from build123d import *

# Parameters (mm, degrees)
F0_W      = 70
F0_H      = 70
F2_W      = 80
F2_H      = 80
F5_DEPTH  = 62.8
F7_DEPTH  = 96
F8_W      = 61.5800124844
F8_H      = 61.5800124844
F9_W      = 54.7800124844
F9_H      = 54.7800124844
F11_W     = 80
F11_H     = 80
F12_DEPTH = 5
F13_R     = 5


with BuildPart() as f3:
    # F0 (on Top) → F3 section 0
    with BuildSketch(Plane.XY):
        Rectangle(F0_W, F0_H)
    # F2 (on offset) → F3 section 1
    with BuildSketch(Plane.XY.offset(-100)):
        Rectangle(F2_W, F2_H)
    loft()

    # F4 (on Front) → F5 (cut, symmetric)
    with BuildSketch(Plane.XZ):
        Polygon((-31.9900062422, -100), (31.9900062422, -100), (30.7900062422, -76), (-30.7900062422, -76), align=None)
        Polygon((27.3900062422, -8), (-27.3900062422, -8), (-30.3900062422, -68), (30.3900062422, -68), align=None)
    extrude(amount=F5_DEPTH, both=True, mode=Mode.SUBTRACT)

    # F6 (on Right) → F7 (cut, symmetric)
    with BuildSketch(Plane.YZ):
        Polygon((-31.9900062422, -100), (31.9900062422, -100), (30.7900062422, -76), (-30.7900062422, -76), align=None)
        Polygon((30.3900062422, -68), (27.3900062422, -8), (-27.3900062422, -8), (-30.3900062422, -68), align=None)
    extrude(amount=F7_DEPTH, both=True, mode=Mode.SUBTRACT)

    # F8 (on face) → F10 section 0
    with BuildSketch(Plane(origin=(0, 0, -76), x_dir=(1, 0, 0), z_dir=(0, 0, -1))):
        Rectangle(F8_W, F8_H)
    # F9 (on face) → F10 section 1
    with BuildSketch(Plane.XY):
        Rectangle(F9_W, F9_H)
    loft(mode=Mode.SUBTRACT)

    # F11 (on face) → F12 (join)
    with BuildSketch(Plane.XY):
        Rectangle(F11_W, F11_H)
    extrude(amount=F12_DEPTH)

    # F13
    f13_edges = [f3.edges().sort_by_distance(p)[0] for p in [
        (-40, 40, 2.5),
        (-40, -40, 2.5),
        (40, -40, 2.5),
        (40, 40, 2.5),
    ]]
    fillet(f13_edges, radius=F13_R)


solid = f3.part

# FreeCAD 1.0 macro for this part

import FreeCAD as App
import Part
import Sketcher

V = App.Vector
Q = App.Units.Quantity


def edges_at(feature, points):
    """Names of the edges that pass closest to the given points."""
    edges = feature.Shape.Edges
    near = lambda p: min(range(len(edges)), key=lambda i: edges[i].distToShape(Part.Vertex(*p))[0])
    return sorted({f"Edge{near(p) + 1}" for p in points})

doc = App.newDocument("Part")
body = doc.addObject("PartDesign::Body", "Body")

# Sketch on XY plane
sketch1 = body.newObject("Sketcher::SketchObject", "Sketch")
sketch1.AttachmentSupport = (doc.getObject("XY_Plane"), [""])
sketch1.MapMode = "FlatFace"
sketch1.addGeometry(Part.LineSegment(V(-35, 35, 0), V(-35, -35, 0)), False)
sketch1.addGeometry(Part.LineSegment(V(-35, -35, 0), V(35, -35, 0)), False)
sketch1.addGeometry(Part.LineSegment(V(35, -35, 0), V(35, 35, 0)), False)
sketch1.addGeometry(Part.LineSegment(V(35, 35, 0), V(-35, 35, 0)), False)
sketch1.addConstraint(Sketcher.Constraint("Coincident", 0, 2, 1, 1))
sketch1.addConstraint(Sketcher.Constraint("Coincident", 1, 2, 2, 1))
sketch1.addConstraint(Sketcher.Constraint("Coincident", 2, 2, 3, 1))
sketch1.addConstraint(Sketcher.Constraint("Coincident", 3, 2, 0, 1))
sketch1.addConstraint(Sketcher.Constraint("Vertical", 0))
sketch1.addConstraint(Sketcher.Constraint("Horizontal", 1))
sketch1.addConstraint(Sketcher.Constraint("Vertical", 2))
sketch1.addConstraint(Sketcher.Constraint("Horizontal", 3))
sketch1.addConstraint(Sketcher.Constraint("Symmetric", 0, 2, 2, 2, -1, 1))
sketch1.addConstraint(Sketcher.Constraint("Equal", 3, 0))
sketch1.addConstraint(Sketcher.Constraint("DistanceX", 1, 1, 1, 2, Q("70 mm")))

# Sketch on XY plane
sketch2 = body.newObject("Sketcher::SketchObject", "Sketch001")
sketch2.AttachmentSupport = (doc.getObject("XY_Plane"), [""])
sketch2.MapMode = "FlatFace"
sketch2.AttachmentOffset = App.Placement(V(0, 0, -100), App.Rotation())
sketch2.addGeometry(Part.LineSegment(V(-40, 40, 0), V(-40, -40, 0)), False)
sketch2.addGeometry(Part.LineSegment(V(-40, -40, 0), V(40, -40, 0)), False)
sketch2.addGeometry(Part.LineSegment(V(40, -40, 0), V(40, 40, 0)), False)
sketch2.addGeometry(Part.LineSegment(V(40, 40, 0), V(-40, 40, 0)), False)
sketch2.addConstraint(Sketcher.Constraint("Coincident", 0, 2, 1, 1))
sketch2.addConstraint(Sketcher.Constraint("Coincident", 1, 2, 2, 1))
sketch2.addConstraint(Sketcher.Constraint("Coincident", 2, 2, 3, 1))
sketch2.addConstraint(Sketcher.Constraint("Coincident", 3, 2, 0, 1))
sketch2.addConstraint(Sketcher.Constraint("Vertical", 0))
sketch2.addConstraint(Sketcher.Constraint("Horizontal", 1))
sketch2.addConstraint(Sketcher.Constraint("Vertical", 2))
sketch2.addConstraint(Sketcher.Constraint("Horizontal", 3))
sketch2.addConstraint(Sketcher.Constraint("Symmetric", 0, 2, 2, 2, -1, 1))
sketch2.addConstraint(Sketcher.Constraint("Equal", 3, 0))
sketch2.addConstraint(Sketcher.Constraint("DistanceX", 1, 1, 1, 2, Q("80 mm")))

additiveloft = body.newObject("PartDesign::AdditiveLoft", "AdditiveLoft")
additiveloft.Profile = sketch1
additiveloft.Sections = [sketch2]

# Sketch on XZ plane
sketch3 = body.newObject("Sketcher::SketchObject", "Sketch002")
sketch3.AttachmentSupport = (doc.getObject("XZ_Plane"), [""])
sketch3.MapMode = "FlatFace"
sketch3.addGeometry(Part.LineSegment(V(-32, -100, 0), V(32, -100, 0)), False)
sketch3.addGeometry(Part.LineSegment(V(32, -100, 0), V(31, -76, 0)), False)
sketch3.addGeometry(Part.LineSegment(V(31, -76, 0), V(-31, -76, 0)), False)
sketch3.addGeometry(Part.LineSegment(V(-31, -76, 0), V(-32, -100, 0)), False)
sketch3.addGeometry(Part.LineSegment(V(27, -8, 0), V(-27, -8, 0)), False)
sketch3.addGeometry(Part.LineSegment(V(-27, -8, 0), V(-30, -68, 0)), False)
sketch3.addGeometry(Part.LineSegment(V(-30, -68, 0), V(30, -68, 0)), False)
sketch3.addGeometry(Part.LineSegment(V(30, -68, 0), V(27, -8, 0)), False)
sketch3.addConstraint(Sketcher.Constraint("Coincident", 0, 2, 1, 1))
sketch3.addConstraint(Sketcher.Constraint("Coincident", 1, 2, 2, 1))
sketch3.addConstraint(Sketcher.Constraint("Coincident", 2, 2, 3, 1))
sketch3.addConstraint(Sketcher.Constraint("Coincident", 3, 2, 0, 1))
sketch3.addConstraint(Sketcher.Constraint("Coincident", 4, 2, 5, 1))
sketch3.addConstraint(Sketcher.Constraint("Coincident", 5, 2, 6, 1))
sketch3.addConstraint(Sketcher.Constraint("Coincident", 6, 2, 7, 1))
sketch3.addConstraint(Sketcher.Constraint("Coincident", 7, 2, 4, 1))
sketch3.addConstraint(Sketcher.Constraint("Horizontal", 0))
sketch3.addConstraint(Sketcher.Constraint("Horizontal", 2))
sketch3.addConstraint(Sketcher.Constraint("Horizontal", 4))
sketch3.addConstraint(Sketcher.Constraint("Horizontal", 6))
sketch3.addConstraint(Sketcher.Constraint("Parallel", 3, 5))
sketch3.addConstraint(Sketcher.Constraint("Parallel", 1, 7))
sketch3.addConstraint(Sketcher.Constraint("Equal", 1, 3))
sketch3.addConstraint(Sketcher.Constraint("DistanceY", 0, 2, -1, 1, Q("100 mm")))
sketch3.addConstraint(Sketcher.Constraint("DistanceY", 1, 2, -1, 1, Q("76 mm")))
sketch3.addConstraint(Sketcher.Constraint("DistanceY", 4, 2, -1, 1, Q("8 mm")))
sketch3.addConstraint(Sketcher.Constraint("DistanceY", 5, 2, -1, 1, Q("68 mm")))
sketch3.addConstraint(Sketcher.Constraint("DistanceX", 5, 2, 4, 2, Q("3 mm")))
sketch3.addConstraint(Sketcher.Constraint("DistanceX", 2, 2, 4, 2, Q("3.4 mm")))
sketch3.addConstraint(Sketcher.Constraint("DistanceX", 6, 2, 1, 2, Q("0.4 mm")))
sketch3.addConstraint(Sketcher.Constraint("DistanceX", 0, 1, 0, 2, Q("63.980012 mm")))
sketch3.addConstraint(Sketcher.Constraint("DistanceX", -1, 1, 0, 2, Q("31.990006 mm")))
pocket1 = body.newObject("PartDesign::Pocket", "Pocket")
pocket1.Profile = sketch3
pocket1.Length = 125.6
pocket1.Midplane = True

# Sketch on YZ plane
sketch4 = body.newObject("Sketcher::SketchObject", "Sketch003")
sketch4.AttachmentSupport = (doc.getObject("YZ_Plane"), [""])
sketch4.MapMode = "FlatFace"
sketch4.addGeometry(Part.LineSegment(V(-32, -100, 0), V(32, -100, 0)), False)
sketch4.addGeometry(Part.LineSegment(V(32, -100, 0), V(31, -76, 0)), False)
sketch4.addGeometry(Part.LineSegment(V(31, -76, 0), V(-31, -76, 0)), False)
sketch4.addGeometry(Part.LineSegment(V(-31, -76, 0), V(-32, -100, 0)), False)
sketch4.addGeometry(Part.LineSegment(V(30, -68, 0), V(27, -8, 0)), False)
sketch4.addGeometry(Part.LineSegment(V(27, -8, 0), V(-27, -8, 0)), False)
sketch4.addGeometry(Part.LineSegment(V(-27, -8, 0), V(-30, -68, 0)), False)
sketch4.addGeometry(Part.LineSegment(V(-30, -68, 0), V(30, -68, 0)), False)
sketch4.addConstraint(Sketcher.Constraint("Coincident", 0, 2, 1, 1))
sketch4.addConstraint(Sketcher.Constraint("Coincident", 1, 2, 2, 1))
sketch4.addConstraint(Sketcher.Constraint("Coincident", 2, 2, 3, 1))
sketch4.addConstraint(Sketcher.Constraint("Coincident", 3, 2, 0, 1))
sketch4.addConstraint(Sketcher.Constraint("Coincident", 4, 2, 5, 1))
sketch4.addConstraint(Sketcher.Constraint("Coincident", 5, 2, 6, 1))
sketch4.addConstraint(Sketcher.Constraint("Coincident", 6, 2, 7, 1))
sketch4.addConstraint(Sketcher.Constraint("Coincident", 7, 2, 4, 1))
sketch4.addConstraint(Sketcher.Constraint("Horizontal", 0))
sketch4.addConstraint(Sketcher.Constraint("Horizontal", 2))
sketch4.addConstraint(Sketcher.Constraint("Horizontal", 5))
sketch4.addConstraint(Sketcher.Constraint("Horizontal", 7))
sketch4.addConstraint(Sketcher.Constraint("Parallel", 1, 4))
sketch4.addConstraint(Sketcher.Constraint("Parallel", 3, 6))
sketch4.addConstraint(Sketcher.Constraint("Equal", 1, 3))
sketch4.addConstraint(Sketcher.Constraint("DistanceY", 0, 2, -1, 1, Q("100 mm")))
sketch4.addConstraint(Sketcher.Constraint("DistanceY", 1, 2, -1, 1, Q("76 mm")))
sketch4.addConstraint(Sketcher.Constraint("DistanceY", 4, 2, -1, 1, Q("8 mm")))
sketch4.addConstraint(Sketcher.Constraint("DistanceY", 6, 2, -1, 1, Q("68 mm")))
sketch4.addConstraint(Sketcher.Constraint("DistanceX", 6, 2, 5, 2, Q("3 mm")))
sketch4.addConstraint(Sketcher.Constraint("DistanceX", 4, 2, 1, 2, Q("3.4 mm")))
sketch4.addConstraint(Sketcher.Constraint("DistanceX", 2, 2, 5, 2, Q("3.4 mm")))
sketch4.addConstraint(Sketcher.Constraint("DistanceX", 0, 1, 0, 2, Q("63.980012 mm")))
sketch4.addConstraint(Sketcher.Constraint("DistanceX", -1, 1, 0, 2, Q("31.990006 mm")))
pocket2 = body.newObject("PartDesign::Pocket", "Pocket001")
pocket2.Profile = sketch4
pocket2.Length = 192
pocket2.Midplane = True

# Sketch on XY plane
sketch5 = body.newObject("Sketcher::SketchObject", "Sketch004")
sketch5.AttachmentSupport = (doc.getObject("XY_Plane"), [""])
sketch5.MapMode = "FlatFace"
sketch5.AttachmentOffset = App.Placement(V(0, 0, -76), App.Rotation())
sketch5.addGeometry(Part.LineSegment(V(-31, -31, 0), V(-31, 31, 0)), False)
sketch5.addGeometry(Part.LineSegment(V(-31, 31, 0), V(31, 31, 0)), False)
sketch5.addGeometry(Part.LineSegment(V(31, 31, 0), V(31, -31, 0)), False)
sketch5.addGeometry(Part.LineSegment(V(31, -31, 0), V(-31, -31, 0)), False)
sketch5.addConstraint(Sketcher.Constraint("Coincident", 0, 2, 1, 1))
sketch5.addConstraint(Sketcher.Constraint("Coincident", 1, 2, 2, 1))
sketch5.addConstraint(Sketcher.Constraint("Coincident", 2, 2, 3, 1))
sketch5.addConstraint(Sketcher.Constraint("Coincident", 3, 2, 0, 1))
sketch5.addConstraint(Sketcher.Constraint("Vertical", 0))
sketch5.addConstraint(Sketcher.Constraint("Horizontal", 1))
sketch5.addConstraint(Sketcher.Constraint("Vertical", 2))
sketch5.addConstraint(Sketcher.Constraint("Horizontal", 3))
sketch5.addConstraint(Sketcher.Constraint("Symmetric", 0, 2, 2, 2, -1, 1))
sketch5.addConstraint(Sketcher.Constraint("Equal", 3, 0))
sketch5.addConstraint(Sketcher.Constraint("DistanceX", 1, 1, 1, 2, Q("61.580012 mm")))

# Sketch on XY plane
sketch6 = body.newObject("Sketcher::SketchObject", "Sketch005")
sketch6.AttachmentSupport = (doc.getObject("XY_Plane"), [""])
sketch6.MapMode = "FlatFace"
sketch6.addGeometry(Part.LineSegment(V(-27, 27, 0), V(-27, -27, 0)), False)
sketch6.addGeometry(Part.LineSegment(V(-27, -27, 0), V(27, -27, 0)), False)
sketch6.addGeometry(Part.LineSegment(V(27, -27, 0), V(27, 27, 0)), False)
sketch6.addGeometry(Part.LineSegment(V(27, 27, 0), V(-27, 27, 0)), False)
sketch6.addConstraint(Sketcher.Constraint("Coincident", 0, 2, 1, 1))
sketch6.addConstraint(Sketcher.Constraint("Coincident", 1, 2, 2, 1))
sketch6.addConstraint(Sketcher.Constraint("Coincident", 2, 2, 3, 1))
sketch6.addConstraint(Sketcher.Constraint("Coincident", 3, 2, 0, 1))
sketch6.addConstraint(Sketcher.Constraint("Vertical", 0))
sketch6.addConstraint(Sketcher.Constraint("Horizontal", 1))
sketch6.addConstraint(Sketcher.Constraint("Vertical", 2))
sketch6.addConstraint(Sketcher.Constraint("Horizontal", 3))
sketch6.addConstraint(Sketcher.Constraint("Symmetric", 0, 2, 2, 2, -1, 1))
sketch6.addConstraint(Sketcher.Constraint("Equal", 3, 0))
sketch6.addConstraint(Sketcher.Constraint("DistanceX", 1, 1, 1, 2, Q("54.780012 mm")))

subtractiveloft = body.newObject("PartDesign::SubtractiveLoft", "SubtractiveLoft")
subtractiveloft.Profile = sketch5
subtractiveloft.Sections = [sketch6]

# Sketch on XY plane
sketch7 = body.newObject("Sketcher::SketchObject", "Sketch006")
sketch7.AttachmentSupport = (doc.getObject("XY_Plane"), [""])
sketch7.MapMode = "FlatFace"
sketch7.addGeometry(Part.LineSegment(V(-40, 40, 0), V(-40, -40, 0)), False)
sketch7.addGeometry(Part.LineSegment(V(-40, -40, 0), V(40, -40, 0)), False)
sketch7.addGeometry(Part.LineSegment(V(40, -40, 0), V(40, 40, 0)), False)
sketch7.addGeometry(Part.LineSegment(V(40, 40, 0), V(-40, 40, 0)), False)
sketch7.addConstraint(Sketcher.Constraint("Coincident", 0, 2, 1, 1))
sketch7.addConstraint(Sketcher.Constraint("Coincident", 1, 2, 2, 1))
sketch7.addConstraint(Sketcher.Constraint("Coincident", 2, 2, 3, 1))
sketch7.addConstraint(Sketcher.Constraint("Coincident", 3, 2, 0, 1))
sketch7.addConstraint(Sketcher.Constraint("Vertical", 0))
sketch7.addConstraint(Sketcher.Constraint("Horizontal", 1))
sketch7.addConstraint(Sketcher.Constraint("Vertical", 2))
sketch7.addConstraint(Sketcher.Constraint("Horizontal", 3))
sketch7.addConstraint(Sketcher.Constraint("Symmetric", 0, 2, 2, 2, -1, 1))
sketch7.addConstraint(Sketcher.Constraint("Equal", 3, 0))
sketch7.addConstraint(Sketcher.Constraint("DistanceX", 1, 1, 1, 2, Q("80 mm")))
pad1 = body.newObject("PartDesign::Pad", "Pad")
pad1.Profile = sketch7
pad1.Length = 5
doc.recompute()

fillet = body.newObject("PartDesign::Fillet", "Fillet")
fillet.Base = (pad1, edges_at(pad1, [
    (-40, 40, 2.5),
    (-40, -40, 2.5),
    (40, -40, 2.5),
    (40, 40, 2.5),
]))
fillet.Radius = 5

doc.recompute()
